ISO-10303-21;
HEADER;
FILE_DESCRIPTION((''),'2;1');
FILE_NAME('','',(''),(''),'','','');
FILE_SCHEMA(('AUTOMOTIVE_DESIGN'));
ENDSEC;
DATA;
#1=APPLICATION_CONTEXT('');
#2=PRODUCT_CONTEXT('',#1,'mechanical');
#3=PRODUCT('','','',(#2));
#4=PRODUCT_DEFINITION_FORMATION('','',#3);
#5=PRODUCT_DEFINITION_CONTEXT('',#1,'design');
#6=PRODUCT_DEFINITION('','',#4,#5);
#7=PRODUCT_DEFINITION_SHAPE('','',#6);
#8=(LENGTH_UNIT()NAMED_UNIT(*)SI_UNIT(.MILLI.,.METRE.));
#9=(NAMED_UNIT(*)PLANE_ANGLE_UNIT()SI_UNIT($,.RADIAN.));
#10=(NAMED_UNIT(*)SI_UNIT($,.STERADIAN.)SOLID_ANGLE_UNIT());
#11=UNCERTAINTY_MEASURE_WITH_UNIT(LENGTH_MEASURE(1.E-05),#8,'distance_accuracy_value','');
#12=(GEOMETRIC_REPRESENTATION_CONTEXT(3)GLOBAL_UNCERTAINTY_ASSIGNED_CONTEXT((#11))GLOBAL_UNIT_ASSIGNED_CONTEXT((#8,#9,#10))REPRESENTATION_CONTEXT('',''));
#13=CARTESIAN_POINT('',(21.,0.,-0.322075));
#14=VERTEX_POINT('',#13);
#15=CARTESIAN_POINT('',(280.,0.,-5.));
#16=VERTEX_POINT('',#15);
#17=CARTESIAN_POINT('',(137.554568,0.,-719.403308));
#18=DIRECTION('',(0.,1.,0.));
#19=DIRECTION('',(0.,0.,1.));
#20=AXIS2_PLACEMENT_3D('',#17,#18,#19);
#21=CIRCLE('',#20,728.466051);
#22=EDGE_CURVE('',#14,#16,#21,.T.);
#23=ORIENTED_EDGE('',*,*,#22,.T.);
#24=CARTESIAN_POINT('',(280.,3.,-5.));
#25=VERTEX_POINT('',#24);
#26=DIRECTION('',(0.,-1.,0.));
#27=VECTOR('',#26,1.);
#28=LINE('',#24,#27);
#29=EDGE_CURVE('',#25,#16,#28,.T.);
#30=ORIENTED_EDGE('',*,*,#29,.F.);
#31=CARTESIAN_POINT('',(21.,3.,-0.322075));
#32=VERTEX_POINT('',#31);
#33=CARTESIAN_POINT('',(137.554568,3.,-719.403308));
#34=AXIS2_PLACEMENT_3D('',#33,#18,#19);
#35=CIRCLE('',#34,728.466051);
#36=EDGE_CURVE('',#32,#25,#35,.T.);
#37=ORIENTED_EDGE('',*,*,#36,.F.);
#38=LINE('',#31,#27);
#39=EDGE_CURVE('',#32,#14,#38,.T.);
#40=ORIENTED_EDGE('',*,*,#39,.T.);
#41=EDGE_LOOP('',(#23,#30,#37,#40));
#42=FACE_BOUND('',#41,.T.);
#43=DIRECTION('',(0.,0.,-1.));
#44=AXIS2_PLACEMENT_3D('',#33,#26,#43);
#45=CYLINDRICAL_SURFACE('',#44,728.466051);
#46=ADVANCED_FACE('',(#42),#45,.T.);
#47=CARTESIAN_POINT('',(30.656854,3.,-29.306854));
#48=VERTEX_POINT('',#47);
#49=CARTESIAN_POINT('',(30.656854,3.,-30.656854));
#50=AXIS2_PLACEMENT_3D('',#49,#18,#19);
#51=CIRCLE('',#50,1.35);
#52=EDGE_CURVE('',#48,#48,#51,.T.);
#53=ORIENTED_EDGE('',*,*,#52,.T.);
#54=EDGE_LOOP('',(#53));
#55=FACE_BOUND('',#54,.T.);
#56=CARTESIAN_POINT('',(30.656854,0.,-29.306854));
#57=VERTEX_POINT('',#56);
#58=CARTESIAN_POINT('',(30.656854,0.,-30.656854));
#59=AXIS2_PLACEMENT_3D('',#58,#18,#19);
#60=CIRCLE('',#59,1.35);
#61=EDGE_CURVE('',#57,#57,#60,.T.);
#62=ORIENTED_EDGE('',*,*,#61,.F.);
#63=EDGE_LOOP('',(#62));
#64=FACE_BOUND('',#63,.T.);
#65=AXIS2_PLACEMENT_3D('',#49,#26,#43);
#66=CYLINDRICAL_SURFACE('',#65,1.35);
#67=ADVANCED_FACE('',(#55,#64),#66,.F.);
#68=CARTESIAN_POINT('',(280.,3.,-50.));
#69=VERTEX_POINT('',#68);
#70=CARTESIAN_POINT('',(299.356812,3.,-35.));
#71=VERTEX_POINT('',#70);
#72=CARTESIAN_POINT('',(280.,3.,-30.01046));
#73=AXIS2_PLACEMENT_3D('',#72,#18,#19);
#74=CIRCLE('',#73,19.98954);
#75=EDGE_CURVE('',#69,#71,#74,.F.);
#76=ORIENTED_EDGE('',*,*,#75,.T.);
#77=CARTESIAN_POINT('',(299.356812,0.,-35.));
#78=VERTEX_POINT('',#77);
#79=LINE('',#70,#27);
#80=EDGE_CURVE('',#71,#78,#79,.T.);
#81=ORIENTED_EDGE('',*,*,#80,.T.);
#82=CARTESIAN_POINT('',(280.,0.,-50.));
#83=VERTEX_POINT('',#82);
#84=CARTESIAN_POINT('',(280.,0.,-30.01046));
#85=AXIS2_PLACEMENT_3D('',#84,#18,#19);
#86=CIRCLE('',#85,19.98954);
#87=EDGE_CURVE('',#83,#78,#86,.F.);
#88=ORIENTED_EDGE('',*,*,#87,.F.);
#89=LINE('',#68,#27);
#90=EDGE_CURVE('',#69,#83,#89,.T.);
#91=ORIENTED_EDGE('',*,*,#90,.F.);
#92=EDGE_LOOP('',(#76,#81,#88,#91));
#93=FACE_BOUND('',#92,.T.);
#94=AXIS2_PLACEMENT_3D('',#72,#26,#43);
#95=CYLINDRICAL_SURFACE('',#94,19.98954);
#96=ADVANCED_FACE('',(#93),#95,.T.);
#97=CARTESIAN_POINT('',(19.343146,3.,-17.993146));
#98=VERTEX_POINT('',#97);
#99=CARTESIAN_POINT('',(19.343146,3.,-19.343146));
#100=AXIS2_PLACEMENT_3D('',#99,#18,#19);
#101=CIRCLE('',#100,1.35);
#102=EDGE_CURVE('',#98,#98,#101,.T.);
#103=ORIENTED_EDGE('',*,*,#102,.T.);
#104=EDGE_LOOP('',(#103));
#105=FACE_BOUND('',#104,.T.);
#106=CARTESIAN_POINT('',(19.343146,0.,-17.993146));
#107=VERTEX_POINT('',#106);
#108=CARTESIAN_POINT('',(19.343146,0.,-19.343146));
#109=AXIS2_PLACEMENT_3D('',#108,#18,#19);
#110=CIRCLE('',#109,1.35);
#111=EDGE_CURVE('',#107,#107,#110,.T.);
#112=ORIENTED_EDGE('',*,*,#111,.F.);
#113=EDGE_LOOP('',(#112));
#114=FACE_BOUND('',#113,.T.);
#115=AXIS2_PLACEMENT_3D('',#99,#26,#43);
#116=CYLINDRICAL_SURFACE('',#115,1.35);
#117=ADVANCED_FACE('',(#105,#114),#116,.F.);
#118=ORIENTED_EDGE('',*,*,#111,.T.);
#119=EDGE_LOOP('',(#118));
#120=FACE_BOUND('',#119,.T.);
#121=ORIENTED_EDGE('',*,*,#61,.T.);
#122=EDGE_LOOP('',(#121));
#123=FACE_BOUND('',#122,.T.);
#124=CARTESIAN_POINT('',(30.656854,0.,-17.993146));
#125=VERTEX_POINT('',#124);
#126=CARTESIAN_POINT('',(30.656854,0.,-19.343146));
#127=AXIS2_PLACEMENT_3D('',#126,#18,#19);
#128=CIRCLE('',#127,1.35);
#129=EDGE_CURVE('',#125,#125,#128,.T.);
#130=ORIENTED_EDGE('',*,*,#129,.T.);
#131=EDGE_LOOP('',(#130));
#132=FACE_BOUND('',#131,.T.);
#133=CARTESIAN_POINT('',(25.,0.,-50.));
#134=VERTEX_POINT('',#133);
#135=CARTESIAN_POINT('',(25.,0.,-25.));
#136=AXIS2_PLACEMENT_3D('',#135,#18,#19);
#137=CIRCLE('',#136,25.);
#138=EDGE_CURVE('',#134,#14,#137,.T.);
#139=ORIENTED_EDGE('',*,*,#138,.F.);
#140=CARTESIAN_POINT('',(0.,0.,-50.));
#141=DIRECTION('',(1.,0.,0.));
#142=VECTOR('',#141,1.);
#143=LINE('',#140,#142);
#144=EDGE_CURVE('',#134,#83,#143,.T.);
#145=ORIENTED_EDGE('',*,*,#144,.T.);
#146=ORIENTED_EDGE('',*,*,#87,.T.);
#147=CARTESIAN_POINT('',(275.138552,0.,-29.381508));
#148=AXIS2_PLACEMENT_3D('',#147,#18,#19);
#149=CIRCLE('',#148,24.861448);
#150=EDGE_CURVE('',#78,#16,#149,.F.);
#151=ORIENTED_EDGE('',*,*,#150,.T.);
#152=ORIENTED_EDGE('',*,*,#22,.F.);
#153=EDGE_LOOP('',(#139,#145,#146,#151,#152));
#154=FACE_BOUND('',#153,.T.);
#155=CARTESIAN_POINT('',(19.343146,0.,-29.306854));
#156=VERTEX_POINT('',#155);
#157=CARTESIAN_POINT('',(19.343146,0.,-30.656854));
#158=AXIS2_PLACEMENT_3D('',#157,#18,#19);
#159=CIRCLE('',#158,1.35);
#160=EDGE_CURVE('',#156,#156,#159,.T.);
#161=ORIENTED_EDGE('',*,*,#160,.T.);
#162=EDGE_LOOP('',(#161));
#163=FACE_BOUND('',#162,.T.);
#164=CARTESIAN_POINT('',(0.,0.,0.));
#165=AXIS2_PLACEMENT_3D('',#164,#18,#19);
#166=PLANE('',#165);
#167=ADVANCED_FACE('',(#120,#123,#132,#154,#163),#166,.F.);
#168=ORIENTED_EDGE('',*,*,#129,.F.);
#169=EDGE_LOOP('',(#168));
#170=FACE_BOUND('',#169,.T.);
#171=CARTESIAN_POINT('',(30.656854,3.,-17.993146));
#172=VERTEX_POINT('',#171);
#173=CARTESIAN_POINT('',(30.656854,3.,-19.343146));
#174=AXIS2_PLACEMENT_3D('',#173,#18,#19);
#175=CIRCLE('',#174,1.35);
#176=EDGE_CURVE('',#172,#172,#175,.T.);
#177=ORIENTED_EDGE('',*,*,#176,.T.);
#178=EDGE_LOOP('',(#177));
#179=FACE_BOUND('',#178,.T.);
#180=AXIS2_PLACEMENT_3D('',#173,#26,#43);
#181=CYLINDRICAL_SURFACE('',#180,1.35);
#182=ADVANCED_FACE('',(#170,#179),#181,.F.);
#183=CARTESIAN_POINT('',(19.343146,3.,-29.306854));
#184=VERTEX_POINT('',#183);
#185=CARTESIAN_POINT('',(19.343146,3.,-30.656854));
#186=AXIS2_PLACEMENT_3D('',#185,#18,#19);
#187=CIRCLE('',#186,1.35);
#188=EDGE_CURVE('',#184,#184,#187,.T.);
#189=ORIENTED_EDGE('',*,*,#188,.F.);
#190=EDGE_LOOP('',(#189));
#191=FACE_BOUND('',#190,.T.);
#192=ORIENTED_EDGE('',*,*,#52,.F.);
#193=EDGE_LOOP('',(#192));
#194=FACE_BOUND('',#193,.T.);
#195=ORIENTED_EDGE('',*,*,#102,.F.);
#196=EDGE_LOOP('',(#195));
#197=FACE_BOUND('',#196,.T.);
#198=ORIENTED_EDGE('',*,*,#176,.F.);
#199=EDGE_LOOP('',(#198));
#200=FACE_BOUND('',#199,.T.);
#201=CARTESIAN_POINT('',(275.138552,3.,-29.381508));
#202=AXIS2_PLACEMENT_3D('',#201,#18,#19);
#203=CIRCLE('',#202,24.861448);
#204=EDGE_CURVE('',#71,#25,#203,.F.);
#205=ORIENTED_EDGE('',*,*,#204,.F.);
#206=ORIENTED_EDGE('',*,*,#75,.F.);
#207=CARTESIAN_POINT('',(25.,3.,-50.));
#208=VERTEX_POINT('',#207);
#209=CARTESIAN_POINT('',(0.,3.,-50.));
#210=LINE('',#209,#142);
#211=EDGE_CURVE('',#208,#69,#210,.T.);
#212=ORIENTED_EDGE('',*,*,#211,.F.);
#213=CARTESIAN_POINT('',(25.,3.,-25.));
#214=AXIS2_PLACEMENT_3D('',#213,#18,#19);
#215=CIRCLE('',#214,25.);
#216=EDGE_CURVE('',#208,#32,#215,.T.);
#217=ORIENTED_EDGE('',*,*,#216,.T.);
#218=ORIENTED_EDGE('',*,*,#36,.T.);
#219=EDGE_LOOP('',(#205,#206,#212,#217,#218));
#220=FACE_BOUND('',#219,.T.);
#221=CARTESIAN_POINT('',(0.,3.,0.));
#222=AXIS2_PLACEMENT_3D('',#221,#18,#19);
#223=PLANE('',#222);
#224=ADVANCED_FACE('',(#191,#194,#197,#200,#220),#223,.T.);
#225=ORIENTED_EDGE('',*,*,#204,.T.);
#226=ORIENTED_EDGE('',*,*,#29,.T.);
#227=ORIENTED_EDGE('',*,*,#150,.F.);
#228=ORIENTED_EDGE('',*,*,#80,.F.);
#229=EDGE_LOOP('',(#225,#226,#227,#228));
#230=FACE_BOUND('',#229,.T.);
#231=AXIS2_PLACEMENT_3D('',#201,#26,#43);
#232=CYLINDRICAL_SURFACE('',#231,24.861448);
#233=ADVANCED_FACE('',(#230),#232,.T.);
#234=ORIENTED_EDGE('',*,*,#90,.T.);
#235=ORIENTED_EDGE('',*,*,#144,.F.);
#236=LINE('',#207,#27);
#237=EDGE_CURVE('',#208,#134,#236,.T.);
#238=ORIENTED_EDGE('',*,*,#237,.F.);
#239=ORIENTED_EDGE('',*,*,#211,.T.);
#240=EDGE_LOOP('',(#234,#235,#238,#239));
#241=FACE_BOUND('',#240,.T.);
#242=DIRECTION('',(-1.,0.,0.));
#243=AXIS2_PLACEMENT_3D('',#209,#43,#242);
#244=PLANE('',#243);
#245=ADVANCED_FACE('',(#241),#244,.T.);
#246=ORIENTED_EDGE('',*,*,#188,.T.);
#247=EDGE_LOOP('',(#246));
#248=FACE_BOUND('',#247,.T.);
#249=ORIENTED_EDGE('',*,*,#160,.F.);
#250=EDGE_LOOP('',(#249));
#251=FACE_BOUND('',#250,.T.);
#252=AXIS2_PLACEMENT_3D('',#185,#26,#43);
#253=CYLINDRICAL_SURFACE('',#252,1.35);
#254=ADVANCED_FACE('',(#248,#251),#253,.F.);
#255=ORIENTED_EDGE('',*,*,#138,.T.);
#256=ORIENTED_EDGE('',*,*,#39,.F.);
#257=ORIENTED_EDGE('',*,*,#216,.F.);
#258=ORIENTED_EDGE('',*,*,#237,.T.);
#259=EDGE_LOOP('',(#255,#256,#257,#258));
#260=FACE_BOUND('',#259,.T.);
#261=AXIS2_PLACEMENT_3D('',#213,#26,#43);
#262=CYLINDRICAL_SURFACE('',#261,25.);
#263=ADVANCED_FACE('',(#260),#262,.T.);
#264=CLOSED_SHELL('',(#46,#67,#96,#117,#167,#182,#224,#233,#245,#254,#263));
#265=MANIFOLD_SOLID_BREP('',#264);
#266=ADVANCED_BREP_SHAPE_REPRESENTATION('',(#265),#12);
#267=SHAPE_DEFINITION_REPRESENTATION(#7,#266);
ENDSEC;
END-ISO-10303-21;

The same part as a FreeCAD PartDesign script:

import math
import FreeCAD as App
import Part
import Sketcher

V = App.Vector
Q = App.Units.Quantity

doc = App.newDocument("Part")
params = doc.addObject("Spreadsheet::Sheet", "Params")
for row, (alias, value) in enumerate([
    ("sketch1_radius", "25 mm"),
    ("sketch1_diameter", "2.7 mm"),
    ("sketch1_width", "255 mm"),
    ("pad1_length", "3 mm"),
], start=1):
    params.set(f"A{row}", alias)
    params.set(f"B{row}", "=" + value)
    params.setAlias(f"B{row}", alias)

body = doc.addObject("PartDesign::Body", "Body")

# Sketch on XZ plane
sketch1 = doc.addObject("Sketcher::SketchObject", "Sketch")
body.addObject(sketch1)
sketch1.AttachmentSupport = (doc.XZ_Plane, [""])
sketch1.MapMode = "FlatFace"
sketch1.addGeometry([
    Part.LineSegment(V(280, -50, 0), V(25, -50, 0)),  # 0
    Part.ArcOfCircle(Part.Circle(V(25, -25, 0), V(0, 0, 1), 25), math.radians(99), math.radians(270)),  # 1
    Part.ArcOfCircle(Part.Circle(V(137.6, -719.4, 0), V(0, 0, 1), 728.5), math.radians(79), math.radians(99)),  # 2
    Part.ArcOfCircle(Part.Circle(V(275.1, -29.4, 0), V(0, 0, 1), 24.9), math.radians(-13), math.radians(79)),  # 3
    Part.ArcOfCircle(Part.Circle(V(280, -30, 0), V(0, 0, 1), 20), math.radians(-90), math.radians(-14)),  # 4
    Part.Circle(V(19.3, -19.3, 0), V(0, 0, 1), 1.4),  # 5
    Part.Circle(V(30.7, -19.3, 0), V(0, 0, 1), 1.4),  # 6
    Part.Circle(V(19.3, -30.7, 0), V(0, 0, 1), 1.4),  # 7
    Part.Circle(V(30.7, -30.7, 0), V(0, 0, 1), 1.4),  # 8
], False)
sketch1.addConstraint([
    Sketcher.Constraint("Tangent", 0, 2, 1, 2),
    Sketcher.Constraint("Tangent", 1, 1, 2, 2),
    Sketcher.Constraint("Tangent", 2, 1, 3, 2),
    Sketcher.Constraint("Coincident", 3, 1, 4, 2),
    Sketcher.Constraint("Tangent", 4, 1, 0, 1),
    Sketcher.Constraint("Horizontal", 0),
    Sketcher.Constraint("Equal", 5, 6),
    Sketcher.Constraint("Equal", 6, 7),
    Sketcher.Constraint("Equal", 7, 8),
    Sketcher.Constraint("Horizontal", 5, 3, 6, 3),
    Sketcher.Constraint("Horizontal", 7, 3, 8, 3),
    Sketcher.Constraint("Vertical", 5, 3, 7, 3),
    Sketcher.Constraint("Vertical", 6, 3, 8, 3),
    Sketcher.Constraint("Radius", 1, Q("25 mm")),
    Sketcher.Constraint("Diameter", 5, Q("2.7 mm")),
    Sketcher.Constraint("DistanceX", 0, 2, 0, 1, Q("255 mm")),
    Sketcher.Constraint("DistanceX", -1, 1, 1, 3, Q("25 mm")),
    Sketcher.Constraint("DistanceY", 1, 3, -1, 1, Q("25 mm")),
    Sketcher.Constraint("DistanceY", 2, 1, -1, 1, Q("5 mm")),
    Sketcher.Constraint("DistanceY", 3, 1, -1, 1, Q("35 mm")),
    Sketcher.Constraint("Radius", 2, Q("728.466051 mm")),
    Sketcher.Constraint("Radius", 4, Q("19.98954 mm")),
    Sketcher.Constraint("Radius", 3, Q("24.861448 mm")),
    Sketcher.Constraint("DistanceY", 3, 3, 5, 3, Q("10.038362 mm")),
    Sketcher.Constraint("DistanceX", 5, 3, 6, 3, Q("11.313708 mm")),
    Sketcher.Constraint("DistanceY", 7, 3, 5, 3, Q("11.313708 mm")),
    Sketcher.Constraint("DistanceX", 8, 3, 3, 1, Q("268.699958 mm")),
])
sketch1.setExpression("Constraints[13]", "Params.sketch1_radius")
sketch1.setExpression("Constraints[14]", "Params.sketch1_diameter")
sketch1.setExpression("Constraints[15]", "Params.sketch1_width")
pad1 = doc.addObject("PartDesign::Pad", "Pad")
body.addObject(pad1)
pad1.Profile = sketch1
pad1.setExpression("Length", "Params.pad1_length")
pad1.Reversed = True

doc.recompute()
